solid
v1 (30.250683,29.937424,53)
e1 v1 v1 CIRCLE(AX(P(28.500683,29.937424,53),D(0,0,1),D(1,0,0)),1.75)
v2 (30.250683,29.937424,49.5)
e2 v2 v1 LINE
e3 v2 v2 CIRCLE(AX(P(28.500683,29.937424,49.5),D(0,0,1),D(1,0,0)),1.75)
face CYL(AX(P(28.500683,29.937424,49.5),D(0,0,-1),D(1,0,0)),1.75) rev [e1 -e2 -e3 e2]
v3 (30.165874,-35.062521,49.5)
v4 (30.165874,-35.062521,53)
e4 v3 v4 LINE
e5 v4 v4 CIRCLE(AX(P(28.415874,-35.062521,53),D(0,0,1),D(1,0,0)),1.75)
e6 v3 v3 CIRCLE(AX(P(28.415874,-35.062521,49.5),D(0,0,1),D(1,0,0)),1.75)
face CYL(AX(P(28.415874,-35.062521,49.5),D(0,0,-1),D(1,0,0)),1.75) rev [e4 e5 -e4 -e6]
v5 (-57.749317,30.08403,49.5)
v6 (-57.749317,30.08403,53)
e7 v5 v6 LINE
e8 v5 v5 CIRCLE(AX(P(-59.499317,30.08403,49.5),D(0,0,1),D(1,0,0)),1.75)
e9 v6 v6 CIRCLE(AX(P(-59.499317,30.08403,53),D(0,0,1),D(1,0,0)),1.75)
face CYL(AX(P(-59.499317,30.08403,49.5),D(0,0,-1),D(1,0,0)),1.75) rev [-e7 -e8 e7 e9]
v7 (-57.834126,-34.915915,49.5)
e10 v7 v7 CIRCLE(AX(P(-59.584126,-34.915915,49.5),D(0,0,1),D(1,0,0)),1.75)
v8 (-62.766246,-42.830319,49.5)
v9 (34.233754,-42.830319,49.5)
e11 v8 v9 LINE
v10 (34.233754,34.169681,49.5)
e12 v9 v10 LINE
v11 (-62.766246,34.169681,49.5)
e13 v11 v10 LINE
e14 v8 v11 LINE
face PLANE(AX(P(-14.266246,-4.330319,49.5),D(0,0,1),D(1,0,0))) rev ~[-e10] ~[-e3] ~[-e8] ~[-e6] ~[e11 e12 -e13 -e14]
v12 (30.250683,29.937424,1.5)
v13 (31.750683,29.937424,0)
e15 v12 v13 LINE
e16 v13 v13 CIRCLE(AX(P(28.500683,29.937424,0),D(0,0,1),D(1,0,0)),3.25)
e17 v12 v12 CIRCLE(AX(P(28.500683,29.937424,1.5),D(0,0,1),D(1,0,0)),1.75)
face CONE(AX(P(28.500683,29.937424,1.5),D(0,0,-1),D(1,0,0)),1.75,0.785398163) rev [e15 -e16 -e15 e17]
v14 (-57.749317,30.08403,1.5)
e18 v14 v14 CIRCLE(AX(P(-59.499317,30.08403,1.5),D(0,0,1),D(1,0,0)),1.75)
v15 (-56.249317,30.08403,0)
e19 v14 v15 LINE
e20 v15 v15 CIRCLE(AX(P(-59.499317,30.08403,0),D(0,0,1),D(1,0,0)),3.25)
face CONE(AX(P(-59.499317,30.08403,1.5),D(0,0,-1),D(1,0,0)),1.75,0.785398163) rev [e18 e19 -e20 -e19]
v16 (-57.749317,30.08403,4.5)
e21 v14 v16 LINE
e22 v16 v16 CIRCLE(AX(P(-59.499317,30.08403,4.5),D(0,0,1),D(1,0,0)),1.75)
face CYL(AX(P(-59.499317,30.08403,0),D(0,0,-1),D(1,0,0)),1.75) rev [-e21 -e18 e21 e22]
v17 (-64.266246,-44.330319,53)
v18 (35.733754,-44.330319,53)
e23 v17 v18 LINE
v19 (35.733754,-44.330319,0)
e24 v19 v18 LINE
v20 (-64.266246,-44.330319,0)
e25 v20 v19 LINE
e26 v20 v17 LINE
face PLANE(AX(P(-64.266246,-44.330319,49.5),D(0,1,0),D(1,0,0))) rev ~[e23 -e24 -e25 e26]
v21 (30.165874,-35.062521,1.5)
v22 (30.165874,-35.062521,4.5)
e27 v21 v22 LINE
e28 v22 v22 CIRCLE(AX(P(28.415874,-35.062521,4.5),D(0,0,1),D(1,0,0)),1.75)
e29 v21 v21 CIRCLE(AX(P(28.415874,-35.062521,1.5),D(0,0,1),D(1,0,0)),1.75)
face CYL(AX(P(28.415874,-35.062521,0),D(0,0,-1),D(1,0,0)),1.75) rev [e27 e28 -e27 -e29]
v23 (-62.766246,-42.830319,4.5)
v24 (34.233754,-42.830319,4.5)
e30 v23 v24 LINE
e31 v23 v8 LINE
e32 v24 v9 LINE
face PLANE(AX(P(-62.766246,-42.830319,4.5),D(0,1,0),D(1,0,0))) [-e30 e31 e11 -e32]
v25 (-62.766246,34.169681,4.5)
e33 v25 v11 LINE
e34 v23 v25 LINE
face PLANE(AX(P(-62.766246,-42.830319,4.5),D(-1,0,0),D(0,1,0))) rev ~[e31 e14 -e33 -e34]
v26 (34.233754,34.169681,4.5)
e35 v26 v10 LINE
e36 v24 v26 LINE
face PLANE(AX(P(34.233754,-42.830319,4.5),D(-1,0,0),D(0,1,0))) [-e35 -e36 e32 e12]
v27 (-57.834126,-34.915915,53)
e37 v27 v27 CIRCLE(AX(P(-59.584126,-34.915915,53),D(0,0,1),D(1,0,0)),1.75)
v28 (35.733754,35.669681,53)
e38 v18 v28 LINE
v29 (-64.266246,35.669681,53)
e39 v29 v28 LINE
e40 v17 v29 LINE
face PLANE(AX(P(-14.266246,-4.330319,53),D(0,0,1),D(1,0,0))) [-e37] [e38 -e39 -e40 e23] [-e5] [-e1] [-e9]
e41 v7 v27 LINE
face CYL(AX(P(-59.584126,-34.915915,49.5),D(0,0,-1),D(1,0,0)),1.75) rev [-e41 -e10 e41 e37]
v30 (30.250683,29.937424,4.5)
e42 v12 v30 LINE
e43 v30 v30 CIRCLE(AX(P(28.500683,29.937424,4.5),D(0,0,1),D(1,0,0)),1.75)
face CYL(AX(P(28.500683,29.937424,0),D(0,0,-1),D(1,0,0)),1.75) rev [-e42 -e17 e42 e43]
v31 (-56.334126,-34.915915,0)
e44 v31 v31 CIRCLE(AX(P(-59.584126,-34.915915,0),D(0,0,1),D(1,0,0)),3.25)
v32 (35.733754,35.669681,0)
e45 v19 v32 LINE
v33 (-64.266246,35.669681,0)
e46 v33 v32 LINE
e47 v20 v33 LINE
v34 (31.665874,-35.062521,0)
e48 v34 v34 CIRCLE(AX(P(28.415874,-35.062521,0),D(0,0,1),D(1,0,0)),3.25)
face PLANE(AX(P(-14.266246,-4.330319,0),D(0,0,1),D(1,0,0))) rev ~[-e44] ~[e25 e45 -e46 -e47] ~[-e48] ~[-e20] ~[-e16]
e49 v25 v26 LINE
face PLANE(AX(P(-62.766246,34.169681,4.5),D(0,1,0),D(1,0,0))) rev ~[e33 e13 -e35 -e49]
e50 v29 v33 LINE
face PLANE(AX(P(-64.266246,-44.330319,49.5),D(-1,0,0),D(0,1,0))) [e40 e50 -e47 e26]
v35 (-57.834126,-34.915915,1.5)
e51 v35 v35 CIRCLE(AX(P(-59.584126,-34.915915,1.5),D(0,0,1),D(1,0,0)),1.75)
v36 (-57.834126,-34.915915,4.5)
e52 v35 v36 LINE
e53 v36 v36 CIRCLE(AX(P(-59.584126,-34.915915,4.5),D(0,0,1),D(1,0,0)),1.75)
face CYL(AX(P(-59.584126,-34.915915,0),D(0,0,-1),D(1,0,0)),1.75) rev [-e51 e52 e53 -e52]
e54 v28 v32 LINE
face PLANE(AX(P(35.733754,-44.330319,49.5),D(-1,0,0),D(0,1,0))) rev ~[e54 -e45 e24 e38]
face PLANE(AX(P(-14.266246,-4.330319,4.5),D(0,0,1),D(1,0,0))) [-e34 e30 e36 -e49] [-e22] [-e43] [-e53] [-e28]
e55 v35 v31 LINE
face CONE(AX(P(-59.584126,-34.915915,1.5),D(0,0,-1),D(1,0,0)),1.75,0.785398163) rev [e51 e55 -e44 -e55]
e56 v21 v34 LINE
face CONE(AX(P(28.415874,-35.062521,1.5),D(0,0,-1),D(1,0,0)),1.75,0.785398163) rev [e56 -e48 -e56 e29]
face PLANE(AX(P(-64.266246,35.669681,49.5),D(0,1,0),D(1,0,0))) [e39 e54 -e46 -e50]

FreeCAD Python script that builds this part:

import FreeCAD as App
import Part
import Sketcher
from FreeCAD import Vector


def edges_at(feature, points):
    """Names of the edges that pass closest to the given points."""
    edges = feature.Shape.Edges
    near = lambda p: min(range(len(edges)), key=lambda i: edges[i].distToShape(Part.Vertex(*p))[0])
    return sorted({f"Edge{near(p) + 1}" for p in points})

doc = App.newDocument("Part")
body = doc.addObject("PartDesign::Body", "Body")

sketch1 = body.newObject("Sketcher::SketchObject", "Sketch")
sketch1.AttachmentSupport = (doc.getObject("XY_Plane"), [""])
sketch1.MapMode = "FlatFace"
sketch1.addGeometry(Part.LineSegment(Vector(-64.3, 35.7, 0), Vector(-64.3, -44.3, 0)), False)
sketch1.addGeometry(Part.LineSegment(Vector(-64.3, -44.3, 0), Vector(35.7, -44.3, 0)), False)
sketch1.addGeometry(Part.LineSegment(Vector(35.7, -44.3, 0), Vector(35.7, 35.7, 0)), False)
sketch1.addGeometry(Part.LineSegment(Vector(35.7, 35.7, 0), Vector(-64.3, 35.7, 0)), False)
sketch1.addGeometry(Part.Circle(Vector(-59.6, -34.9, 0), Vector(0, 0, 1), 1.8), False)
sketch1.addGeometry(Part.Circle(Vector(28.4, -35.1, 0), Vector(0, 0, 1), 1.8), False)
sketch1.addGeometry(Part.Circle(Vector(-59.5, 30.1, 0), Vector(0, 0, 1), 1.8), False)
sketch1.addGeometry(Part.Circle(Vector(28.5, 29.9, 0), Vector(0, 0, 1), 1.8), False)
sketch1.addConstraint(Sketcher.Constraint("Coincident", 0, 2, 1, 1))
sketch1.addConstraint(Sketcher.Constraint("Coincident", 1, 2, 2, 1))
sketch1.addConstraint(Sketcher.Constraint("Coincident", 2, 2, 3, 1))
sketch1.addConstraint(Sketcher.Constraint("Coincident", 3, 2, 0, 1))
sketch1.addConstraint(Sketcher.Constraint("Vertical", 0))
sketch1.addConstraint(Sketcher.Constraint("Horizontal", 1))
sketch1.addConstraint(Sketcher.Constraint("Vertical", 2))
sketch1.addConstraint(Sketcher.Constraint("Horizontal", 3))
sketch1.addConstraint(Sketcher.Constraint("Equal", 4, 5))
sketch1.addConstraint(Sketcher.Constraint("Equal", 5, 6))
sketch1.addConstraint(Sketcher.Constraint("Equal", 6, 7))
sketch1.addConstraint(Sketcher.Constraint("Diameter", 4, 3.5))
sketch1.addConstraint(Sketcher.Constraint("DistanceX", 1, 1, 1, 2, 100.0))
sketch1.addConstraint(Sketcher.Constraint("DistanceY", 0, 2, 0, 1, 80.0))
sketch1.addConstraint(Sketcher.Constraint("DistanceX", 4, 3, 5, 3, 88.0))
sketch1.addConstraint(Sketcher.Constraint("DistanceX", 6, 3, 7, 3, 88.0))
sketch1.addConstraint(Sketcher.Constraint("DistanceY", 0, 2, 5, 3, 9.267798))
sketch1.addConstraint(Sketcher.Constraint("DistanceY", 5, 3, -1, 1, 35.062521))
sketch1.addConstraint(Sketcher.Constraint("DistanceY", -1, 1, 6, 3, 30.08403))
sketch1.addConstraint(Sketcher.Constraint("DistanceX", 4, 3, 6, 3, 0.084809))
sketch1.addConstraint(Sketcher.Constraint("DistanceY", 4, 3, 7, 3, 64.853339))
sketch1.addConstraint(Sketcher.Constraint("DistanceX", 0, 2, 4, 3, 4.68212))
sketch1.addConstraint(Sketcher.Constraint("DistanceX", 4, 3, -1, 1, 59.584126))
sketch1.addConstraint(Sketcher.Constraint("DistanceY", 4, 3, -1, 1, 34.915915))
pad1 = body.newObject("PartDesign::Pad", "Pad")
pad1.Profile = sketch1
pad1.Length = 4.5
doc.recompute()

chamfer = body.newObject("PartDesign::Chamfer", "Chamfer")
chamfer.Base = (pad1, edges_at(pad1, [
    (-61.334, -34.916, 0),
    (26.666, -35.063, 0),
    (26.751, 29.937, 0),
    (-61.249, 30.084, 0),
]))
chamfer.Size = 1.5

sketch2 = body.newObject("Sketcher::SketchObject", "Sketch001")
sketch2.AttachmentSupport = (doc.getObject("XY_Plane"), [""])
sketch2.MapMode = "FlatFace"
sketch2.AttachmentOffset = App.Placement(Vector(0, 0, 4.5), App.Rotation())
sketch2.addGeometry(Part.LineSegment(Vector(-64, 36, 0), Vector(-64, -44, 0)), False)
sketch2.addGeometry(Part.LineSegment(Vector(-64, -44, 0), Vector(36, -44, 0)), False)
sketch2.addGeometry(Part.LineSegment(Vector(36, -44, 0), Vector(36, 36, 0)), False)
sketch2.addGeometry(Part.LineSegment(Vector(36, 36, 0), Vector(-64, 36, 0)), False)
sketch2.addGeometry(Part.LineSegment(Vector(34, -43, 0), Vector(-63, -43, 0)), False)
sketch2.addGeometry(Part.LineSegment(Vector(-63, -43, 0), Vector(-63, 34, 0)), False)
sketch2.addGeometry(Part.LineSegment(Vector(-63, 34, 0), Vector(34, 34, 0)), False)
sketch2.addGeometry(Part.LineSegment(Vector(34, 34, 0), Vector(34, -43, 0)), False)
sketch2.addConstraint(Sketcher.Constraint("Coincident", 0, 2, 1, 1))
sketch2.addConstraint(Sketcher.Constraint("Coincident", 1, 2, 2, 1))
sketch2.addConstraint(Sketcher.Constraint("Coincident", 2, 2, 3, 1))
sketch2.addConstraint(Sketcher.Constraint("Coincident", 3, 2, 0, 1))
sketch2.addConstraint(Sketcher.Constraint("Coincident", 4, 2, 5, 1))
sketch2.addConstraint(Sketcher.Constraint("Coincident", 5, 2, 6, 1))
sketch2.addConstraint(Sketcher.Constraint("Coincident", 6, 2, 7, 1))
sketch2.addConstraint(Sketcher.Constraint("Coincident", 7, 2, 4, 1))
sketch2.addConstraint(Sketcher.Constraint("Vertical", 0))
sketch2.addConstraint(Sketcher.Constraint("Horizontal", 1))
sketch2.addConstraint(Sketcher.Constraint("Vertical", 2))
sketch2.addConstraint(Sketcher.Constraint("Horizontal", 3))
sketch2.addConstraint(Sketcher.Constraint("Horizontal", 4))
sketch2.addConstraint(Sketcher.Constraint("Vertical", 5))
sketch2.addConstraint(Sketcher.Constraint("Horizontal", 6))
sketch2.addConstraint(Sketcher.Constraint("Vertical", 7))
sketch2.addConstraint(Sketcher.Constraint("DistanceX", 1, 1, 1, 2, 100.0))
sketch2.addConstraint(Sketcher.Constraint("DistanceX", 4, 2, 4, 1, 97.0))
sketch2.addConstraint(Sketcher.Constraint("DistanceY", 0, 2, 0, 1, 80.0))
sketch2.addConstraint(Sketcher.Constraint("DistanceY", 5, 1, 5, 2, 77.0))
sketch2.addConstraint(Sketcher.Constraint("DistanceX", 0, 2, 4, 2, 1.5))
sketch2.addConstraint(Sketcher.Constraint("DistanceY", 0, 2, 4, 2, 1.5))
sketch2.addConstraint(Sketcher.Constraint("DistanceY", 0, 2, -1, 1, 44.330319))
sketch2.addConstraint(Sketcher.Constraint("DistanceX", 0, 2, -1, 1, 64.266246))
pad2 = body.newObject("PartDesign::Pad", "Pad001")
pad2.Profile = sketch2
pad2.Length = 45

sketch3 = body.newObject("Sketcher::SketchObject", "Sketch002")
sketch3.AttachmentSupport = (doc.getObject("XY_Plane"), [""])
sketch3.MapMode = "FlatFace"
sketch3.AttachmentOffset = App.Placement(Vector(0, 0, 49.5), App.Rotation())
sketch3.addGeometry(Part.LineSegment(Vector(-64.3, 35.7, 0), Vector(-64.3, -44.3, 0)), False)
sketch3.addGeometry(Part.LineSegment(Vector(-64.3, -44.3, 0), Vector(35.7, -44.3, 0)), False)
sketch3.addGeometry(Part.LineSegment(Vector(35.7, -44.3, 0), Vector(35.7, 35.7, 0)), False)
sketch3.addGeometry(Part.LineSegment(Vector(35.7, 35.7, 0), Vector(-64.3, 35.7, 0)), False)
sketch3.addGeometry(Part.Circle(Vector(-59.6, -34.9, 0), Vector(0, 0, 1), 1.8), False)
sketch3.addGeometry(Part.Circle(Vector(28.4, -35.1, 0), Vector(0, 0, 1), 1.8), False)
sketch3.addGeometry(Part.Circle(Vector(-59.5, 30.1, 0), Vector(0, 0, 1), 1.8), False)
sketch3.addGeometry(Part.Circle(Vector(28.5, 29.9, 0), Vector(0, 0, 1), 1.8), False)
sketch3.addConstraint(Sketcher.Constraint("Coincident", 0, 2, 1, 1))
sketch3.addConstraint(Sketcher.Constraint("Coincident", 1, 2, 2, 1))
sketch3.addConstraint(Sketcher.Constraint("Coincident", 2, 2, 3, 1))
sketch3.addConstraint(Sketcher.Constraint("Coincident", 3, 2, 0, 1))
sketch3.addConstraint(Sketcher.Constraint("Vertical", 0))
sketch3.addConstraint(Sketcher.Constraint("Horizontal", 1))
sketch3.addConstraint(Sketcher.Constraint("Vertical", 2))
sketch3.addConstraint(Sketcher.Constraint("Horizontal", 3))
sketch3.addConstraint(Sketcher.Constraint("Equal", 4, 5))
sketch3.addConstraint(Sketcher.Constraint("Equal", 5, 6))
sketch3.addConstraint(Sketcher.Constraint("Equal", 6, 7))
sketch3.addConstraint(Sketcher.Constraint("Diameter", 4, 3.5))
sketch3.addConstraint(Sketcher.Constraint("DistanceX", 1, 1, 1, 2, 100.0))
sketch3.addConstraint(Sketcher.Constraint("DistanceY", 0, 2, 0, 1, 80.0))
sketch3.addConstraint(Sketcher.Constraint("DistanceX", 4, 3, 5, 3, 88.0))
sketch3.addConstraint(Sketcher.Constraint("DistanceX", 6, 3, 7, 3, 88.0))
sketch3.addConstraint(Sketcher.Constraint("DistanceY", 0, 2, 5, 3, 9.267798))
sketch3.addConstraint(Sketcher.Constraint("DistanceY", 5, 3, -1, 1, 35.062521))
sketch3.addConstraint(Sketcher.Constraint("DistanceY", -1, 1, 6, 3, 30.08403))
sketch3.addConstraint(Sketcher.Constraint("DistanceX", 4, 3, 6, 3, 0.084809))
sketch3.addConstraint(Sketcher.Constraint("DistanceY", 4, 3, 7, 3, 64.853339))
sketch3.addConstraint(Sketcher.Constraint("DistanceX", 0, 2, 4, 3, 4.68212))
sketch3.addConstraint(Sketcher.Constraint("DistanceX", 4, 3, -1, 1, 59.584126))
sketch3.addConstraint(Sketcher.Constraint("DistanceY", 4, 3, -1, 1, 34.915915))
pad3 = body.newObject("PartDesign::Pad", "Pad002")
pad3.Profile = sketch3
pad3.Length = 3.5

doc.recompute()
